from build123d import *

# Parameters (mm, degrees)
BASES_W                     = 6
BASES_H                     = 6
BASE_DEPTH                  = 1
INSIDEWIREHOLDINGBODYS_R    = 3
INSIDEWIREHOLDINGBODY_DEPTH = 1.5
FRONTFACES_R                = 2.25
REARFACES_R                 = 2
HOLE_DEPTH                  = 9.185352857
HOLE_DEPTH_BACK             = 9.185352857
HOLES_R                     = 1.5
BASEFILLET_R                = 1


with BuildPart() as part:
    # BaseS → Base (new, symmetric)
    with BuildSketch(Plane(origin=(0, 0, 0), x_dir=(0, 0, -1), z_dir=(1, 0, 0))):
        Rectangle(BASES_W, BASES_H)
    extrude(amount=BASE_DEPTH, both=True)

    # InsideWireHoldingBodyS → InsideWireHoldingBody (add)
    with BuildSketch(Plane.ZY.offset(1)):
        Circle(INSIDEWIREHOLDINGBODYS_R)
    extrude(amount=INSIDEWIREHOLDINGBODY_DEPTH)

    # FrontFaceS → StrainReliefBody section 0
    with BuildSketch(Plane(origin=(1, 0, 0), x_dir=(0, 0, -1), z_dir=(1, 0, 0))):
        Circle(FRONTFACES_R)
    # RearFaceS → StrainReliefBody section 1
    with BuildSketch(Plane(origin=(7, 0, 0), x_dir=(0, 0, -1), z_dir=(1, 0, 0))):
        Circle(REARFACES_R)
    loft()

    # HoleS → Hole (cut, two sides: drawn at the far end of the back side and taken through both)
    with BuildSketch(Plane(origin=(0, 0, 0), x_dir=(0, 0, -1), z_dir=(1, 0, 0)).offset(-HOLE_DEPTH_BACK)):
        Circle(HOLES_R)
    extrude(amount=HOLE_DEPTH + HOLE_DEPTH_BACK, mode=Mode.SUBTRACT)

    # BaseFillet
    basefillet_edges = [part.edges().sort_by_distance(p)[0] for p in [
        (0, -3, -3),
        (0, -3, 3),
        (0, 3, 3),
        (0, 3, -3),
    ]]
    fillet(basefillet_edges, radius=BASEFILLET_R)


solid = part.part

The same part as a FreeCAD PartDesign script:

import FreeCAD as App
import Part
import Sketcher

V = App.Vector
Q = App.Units.Quantity


def edges_at(feature, points):
    """Names of the edges that pass closest to the given points."""
    edges = feature.Shape.Edges
    near = lambda p: min(range(len(edges)), key=lambda i: edges[i].distToShape(Part.Vertex(*p))[0])
    return sorted({f"Edge{near(p) + 1}" for p in points})

doc = App.newDocument("Part")
body = doc.addObject("PartDesign::Body", "Body")

# Sketch on YZ plane
sketch1 = body.newObject("Sketcher::SketchObject", "Sketch")
sketch1.AttachmentSupport = (doc.getObject("YZ_Plane"), [""])
sketch1.MapMode = "FlatFace"
sketch1.addGeometry(Part.LineSegment(V(3, 3, 0), V(-3, 3, 0)), False)
sketch1.addGeometry(Part.LineSegment(V(-3, 3, 0), V(-3, -3, 0)), False)
sketch1.addGeometry(Part.LineSegment(V(-3, -3, 0), V(3, -3, 0)), False)
sketch1.addGeometry(Part.LineSegment(V(3, -3, 0), V(3, 3, 0)), False)
sketch1.addConstraint(Sketcher.Constraint("Coincident", 0, 2, 1, 1))
sketch1.addConstraint(Sketcher.Constraint("Coincident", 1, 2, 2, 1))
sketch1.addConstraint(Sketcher.Constraint("Coincident", 2, 2, 3, 1))
sketch1.addConstraint(Sketcher.Constraint("Coincident", 3, 2, 0, 1))
sketch1.addConstraint(Sketcher.Constraint("Horizontal", 0))
sketch1.addConstraint(Sketcher.Constraint("Vertical", 1))
sketch1.addConstraint(Sketcher.Constraint("Horizontal", 2))
sketch1.addConstraint(Sketcher.Constraint("Vertical", 3))
sketch1.addConstraint(Sketcher.Constraint("Symmetric", 0, 2, 2, 2, -1, 1))
sketch1.addConstraint(Sketcher.Constraint("Equal", 2, 1))
sketch1.addConstraint(Sketcher.Constraint("DistanceX", 0, 2, 0, 1, Q("6 mm")))
pad1 = body.newObject("PartDesign::Pad", "Pad")
pad1.Profile = sketch1
pad1.Length = 2
pad1.Midplane = True

# Sketch on YZ plane
sketch2 = body.newObject("Sketcher::SketchObject", "Sketch001")
sketch2.AttachmentSupport = (doc.getObject("YZ_Plane"), [""])
sketch2.MapMode = "FlatFace"
sketch2.AttachmentOffset = App.Placement(V(0, 0, -1), App.Rotation())
sketch2.addGeometry(Part.Circle(V(0, 0, 0), V(0, 0, 1), 3), False)
sketch2.addConstraint(Sketcher.Constraint("Coincident", 0, 3, -1, 1))
sketch2.addConstraint(Sketcher.Constraint("Diameter", 0, Q("6 mm")))
pad2 = body.newObject("PartDesign::Pad", "Pad001")
pad2.Profile = sketch2
pad2.Length = 1.5
pad2.Reversed = True

# Sketch on YZ plane
sketch3 = body.newObject("Sketcher::SketchObject", "Sketch002")
sketch3.AttachmentSupport = (doc.getObject("YZ_Plane"), [""])
sketch3.MapMode = "FlatFace"
sketch3.AttachmentOffset = App.Placement(V(0, 0, 1), App.Rotation())
sketch3.addGeometry(Part.Circle(V(0, 0, 0), V(0, 0, 1), 2.2), False)
sketch3.addConstraint(Sketcher.Constraint("Coincident", 0, 3, -1, 1))
sketch3.addConstraint(Sketcher.Constraint("Diameter", 0, Q("4.5 mm")))

# Sketch on YZ plane
sketch4 = body.newObject("Sketcher::SketchObject", "Sketch003")
sketch4.AttachmentSupport = (doc.getObject("YZ_Plane"), [""])
sketch4.MapMode = "FlatFace"
sketch4.AttachmentOffset = App.Placement(V(0, 0, 7), App.Rotation())
sketch4.addGeometry(Part.Circle(V(0, 0, 0), V(0, 0, 1), 2), False)
sketch4.addConstraint(Sketcher.Constraint("Coincident", 0, 3, -1, 1))
sketch4.addConstraint(Sketcher.Constraint("Diameter", 0, Q("4 mm")))

additiveloft = body.newObject("PartDesign::AdditiveLoft", "AdditiveLoft")
additiveloft.Profile = sketch3
additiveloft.Sections = [sketch4]

# Sketch on YZ plane
sketch5 = body.newObject("Sketcher::SketchObject", "Sketch004")
sketch5.AttachmentSupport = (doc.getObject("YZ_Plane"), [""])
sketch5.MapMode = "FlatFace"
sketch5.addGeometry(Part.Circle(V(0, 0, 0), V(0, 0, 1), 1.5), False)
sketch5.addConstraint(Sketcher.Constraint("Coincident", 0, 3, -1, 1))
sketch5.addConstraint(Sketcher.Constraint("Diameter", 0, Q("3 mm")))
pocket1 = body.newObject("PartDesign::Pocket", "Pocket")
pocket1.Profile = sketch5
pocket1.Type = "ThroughAll"
pocket1.Midplane = True
doc.recompute()

fillet = body.newObject("PartDesign::Fillet", "Fillet")
fillet.Base = (pocket1, edges_at(pocket1, [
    (0, -3, -3),
    (0, -3, 3),
    (0, 3, 3),
    (0, 3, -3),
]))
fillet.Radius = 1

doc.recompute()
